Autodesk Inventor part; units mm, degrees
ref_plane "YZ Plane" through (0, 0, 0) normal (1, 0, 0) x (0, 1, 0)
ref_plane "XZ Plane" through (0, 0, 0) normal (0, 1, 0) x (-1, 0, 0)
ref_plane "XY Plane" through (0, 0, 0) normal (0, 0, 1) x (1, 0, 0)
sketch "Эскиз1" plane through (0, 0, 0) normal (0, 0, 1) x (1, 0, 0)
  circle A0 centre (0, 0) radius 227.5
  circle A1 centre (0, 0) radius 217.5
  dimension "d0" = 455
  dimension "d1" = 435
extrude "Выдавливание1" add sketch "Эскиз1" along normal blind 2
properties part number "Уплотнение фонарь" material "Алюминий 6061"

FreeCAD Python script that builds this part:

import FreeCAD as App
import Part
import Sketcher

V = App.Vector
Q = App.Units.Quantity

doc = App.newDocument("Part")
params = doc.addObject("Spreadsheet::Sheet", "Params")
for row, (alias, value) in enumerate([
    ("sketch1_diameter", "455 mm"),
    ("sketch1_diameter2", "435 mm"),
    ("pad1_length", "2 mm"),
], start=1):
    params.set(f"A{row}", alias)
    params.set(f"B{row}", "=" + value)
    params.setAlias(f"B{row}", alias)

body = doc.addObject("PartDesign::Body", "Body")

# Sketch on XY plane
sketch1 = body.newObject("Sketcher::SketchObject", "Sketch")
sketch1.AttachmentSupport = (doc.getObject("XY_Plane"), [""])
sketch1.MapMode = "FlatFace"
sketch1.addGeometry(Part.Circle(V(0, 0, 0), V(0, 0, 1), 228), False)
sketch1.addGeometry(Part.Circle(V(0, 0, 0), V(0, 0, 1), 218), False)
sketch1.addConstraint(Sketcher.Constraint("Coincident", 0, 3, -1, 1))
sketch1.addConstraint(Sketcher.Constraint("Coincident", 1, 3, -1, 1))
sketch1.addConstraint(Sketcher.Constraint("Diameter", 0, Q("455 mm")))
sketch1.addConstraint(Sketcher.Constraint("Diameter", 1, Q("435 mm")))
sketch1.setExpression("Constraints[2]", "Params.sketch1_diameter")
sketch1.setExpression("Constraints[3]", "Params.sketch1_diameter2")
pad1 = body.newObject("PartDesign::Pad", "Pad")
pad1.Profile = sketch1
pad1.setExpression("Length", "Params.pad1_length")

doc.recompute()
